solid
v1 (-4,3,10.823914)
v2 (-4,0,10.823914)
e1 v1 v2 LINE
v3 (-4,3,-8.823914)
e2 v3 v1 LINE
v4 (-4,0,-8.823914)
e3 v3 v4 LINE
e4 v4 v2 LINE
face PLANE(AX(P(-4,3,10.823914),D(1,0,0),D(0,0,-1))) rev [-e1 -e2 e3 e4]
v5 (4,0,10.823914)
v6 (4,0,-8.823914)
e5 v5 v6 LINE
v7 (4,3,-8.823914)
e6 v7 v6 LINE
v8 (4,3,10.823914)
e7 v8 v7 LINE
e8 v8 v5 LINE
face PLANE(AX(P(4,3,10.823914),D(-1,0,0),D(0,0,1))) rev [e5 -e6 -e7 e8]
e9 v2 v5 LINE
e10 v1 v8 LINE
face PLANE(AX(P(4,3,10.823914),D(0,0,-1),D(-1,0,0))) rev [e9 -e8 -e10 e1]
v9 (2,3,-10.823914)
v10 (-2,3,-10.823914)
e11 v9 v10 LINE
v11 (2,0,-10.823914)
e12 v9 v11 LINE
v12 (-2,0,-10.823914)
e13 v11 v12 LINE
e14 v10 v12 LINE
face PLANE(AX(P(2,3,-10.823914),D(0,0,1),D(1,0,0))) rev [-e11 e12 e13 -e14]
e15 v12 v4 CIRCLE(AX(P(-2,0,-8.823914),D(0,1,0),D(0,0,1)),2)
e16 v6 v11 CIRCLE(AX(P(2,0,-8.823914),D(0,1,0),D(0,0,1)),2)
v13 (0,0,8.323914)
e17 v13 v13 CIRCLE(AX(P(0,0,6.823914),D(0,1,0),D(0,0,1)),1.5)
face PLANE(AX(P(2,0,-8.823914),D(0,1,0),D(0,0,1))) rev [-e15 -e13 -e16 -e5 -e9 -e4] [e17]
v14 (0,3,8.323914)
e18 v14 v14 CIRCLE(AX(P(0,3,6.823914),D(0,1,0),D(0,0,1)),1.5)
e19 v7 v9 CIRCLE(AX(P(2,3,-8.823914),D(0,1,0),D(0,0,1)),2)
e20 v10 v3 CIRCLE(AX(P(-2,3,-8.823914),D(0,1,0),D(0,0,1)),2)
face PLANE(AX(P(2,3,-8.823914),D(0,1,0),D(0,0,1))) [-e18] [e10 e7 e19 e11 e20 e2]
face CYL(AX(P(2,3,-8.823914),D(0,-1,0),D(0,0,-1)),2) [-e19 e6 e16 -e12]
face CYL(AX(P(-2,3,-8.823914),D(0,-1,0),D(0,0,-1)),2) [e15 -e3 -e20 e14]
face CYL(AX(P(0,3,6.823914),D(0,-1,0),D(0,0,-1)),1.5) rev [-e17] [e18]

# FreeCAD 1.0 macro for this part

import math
import FreeCAD as App
import Part
import Sketcher

doc = App.newDocument("Part")
params = doc.addObject("Spreadsheet::Sheet", "Params")
for row, (alias, value) in enumerate([
    ("sketch1_diameter", "3 mm"),
    ("sketch1_radius", "2 mm"),
    ("sketch1_width", "8 mm"),
    ("pad1_length", "3 mm"),
], start=1):
    params.set(f"A{row}", alias)
    params.set(f"B{row}", "=" + value)
    params.setAlias(f"B{row}", alias)

body = doc.addObject("PartDesign::Body", "Body")

sketch1 = body.newObject("Sketcher::SketchObject", "Sketch")
sketch1.AttachmentSupport = (doc.getObject("XZ_Plane"), [""])
sketch1.MapMode = "FlatFace"
sketch1.addGeometry(Part.LineSegment(App.Vector(-4, 10.8, 0), App.Vector(4, 10.8, 0)), False)
sketch1.addGeometry(Part.LineSegment(App.Vector(4, 10.8, 0), App.Vector(4, -8.8, 0)), False)
sketch1.addGeometry(Part.ArcOfCircle(Part.Circle(App.Vector(2, -8.8, 0), App.Vector(0, 0, 1), 2), math.radians(-90), math.radians(0)), False)
sketch1.addGeometry(Part.LineSegment(App.Vector(2, -10.8, 0), App.Vector(-2, -10.8, 0)), False)
sketch1.addGeometry(Part.ArcOfCircle(Part.Circle(App.Vector(-2, -8.8, 0), App.Vector(0, 0, 1), 2), math.radians(-180), math.radians(-90)), False)
sketch1.addGeometry(Part.LineSegment(App.Vector(-4, -8.8, 0), App.Vector(-4, 10.8, 0)), False)
sketch1.addGeometry(Part.Circle(App.Vector(0, 6.8, 0), App.Vector(0, 0, 1), 1.5), False)
sketch1.addConstraint(Sketcher.Constraint("Coincident", 0, 2, 1, 1))
sketch1.addConstraint(Sketcher.Constraint("Tangent", 1, 2, 2, 2))
sketch1.addConstraint(Sketcher.Constraint("Tangent", 2, 1, 3, 1))
sketch1.addConstraint(Sketcher.Constraint("Tangent", 3, 2, 4, 2))
sketch1.addConstraint(Sketcher.Constraint("Tangent", 4, 1, 5, 1))
sketch1.addConstraint(Sketcher.Constraint("Coincident", 5, 2, 0, 1))
sketch1.addConstraint(Sketcher.Constraint("Horizontal", 0))
sketch1.addConstraint(Sketcher.Constraint("Vertical", 1))
sketch1.addConstraint(Sketcher.Constraint("Horizontal", 3))
sketch1.addConstraint(Sketcher.Constraint("Vertical", 5))
sketch1.addConstraint(Sketcher.Constraint("Equal", 2, 4))
sketch1.addConstraint(Sketcher.Constraint("PointOnObject", 6, 3, -2))
sketch1.addConstraint(Sketcher.Constraint("Diameter", 6, 3.0))
sketch1.addConstraint(Sketcher.Constraint("Radius", 2, 2.0))
sketch1.addConstraint(Sketcher.Constraint("DistanceX", 0, 1, 0, 2, 8.0))
sketch1.addConstraint(Sketcher.Constraint("DistanceX", -1, 1, 2, 3, 2.0))
sketch1.addConstraint(Sketcher.Constraint("DistanceY", 6, 3, 0, 2, 4.0))
sketch1.addConstraint(Sketcher.Constraint("DistanceY", 1, 2, 1, 1, 19.647828))
sketch1.addConstraint(Sketcher.Constraint("DistanceY", 2, 3, -1, 1, 8.823914))
sketch1.setExpression("Constraints[12]", "Params.sketch1_diameter")
sketch1.setExpression("Constraints[13]", "Params.sketch1_radius")
sketch1.setExpression("Constraints[14]", "Params.sketch1_width")
pad1 = body.newObject("PartDesign::Pad", "Pad")
pad1.Profile = sketch1
pad1.setExpression("Length", "Params.pad1_length")
pad1.Reversed = True

doc.recompute()
